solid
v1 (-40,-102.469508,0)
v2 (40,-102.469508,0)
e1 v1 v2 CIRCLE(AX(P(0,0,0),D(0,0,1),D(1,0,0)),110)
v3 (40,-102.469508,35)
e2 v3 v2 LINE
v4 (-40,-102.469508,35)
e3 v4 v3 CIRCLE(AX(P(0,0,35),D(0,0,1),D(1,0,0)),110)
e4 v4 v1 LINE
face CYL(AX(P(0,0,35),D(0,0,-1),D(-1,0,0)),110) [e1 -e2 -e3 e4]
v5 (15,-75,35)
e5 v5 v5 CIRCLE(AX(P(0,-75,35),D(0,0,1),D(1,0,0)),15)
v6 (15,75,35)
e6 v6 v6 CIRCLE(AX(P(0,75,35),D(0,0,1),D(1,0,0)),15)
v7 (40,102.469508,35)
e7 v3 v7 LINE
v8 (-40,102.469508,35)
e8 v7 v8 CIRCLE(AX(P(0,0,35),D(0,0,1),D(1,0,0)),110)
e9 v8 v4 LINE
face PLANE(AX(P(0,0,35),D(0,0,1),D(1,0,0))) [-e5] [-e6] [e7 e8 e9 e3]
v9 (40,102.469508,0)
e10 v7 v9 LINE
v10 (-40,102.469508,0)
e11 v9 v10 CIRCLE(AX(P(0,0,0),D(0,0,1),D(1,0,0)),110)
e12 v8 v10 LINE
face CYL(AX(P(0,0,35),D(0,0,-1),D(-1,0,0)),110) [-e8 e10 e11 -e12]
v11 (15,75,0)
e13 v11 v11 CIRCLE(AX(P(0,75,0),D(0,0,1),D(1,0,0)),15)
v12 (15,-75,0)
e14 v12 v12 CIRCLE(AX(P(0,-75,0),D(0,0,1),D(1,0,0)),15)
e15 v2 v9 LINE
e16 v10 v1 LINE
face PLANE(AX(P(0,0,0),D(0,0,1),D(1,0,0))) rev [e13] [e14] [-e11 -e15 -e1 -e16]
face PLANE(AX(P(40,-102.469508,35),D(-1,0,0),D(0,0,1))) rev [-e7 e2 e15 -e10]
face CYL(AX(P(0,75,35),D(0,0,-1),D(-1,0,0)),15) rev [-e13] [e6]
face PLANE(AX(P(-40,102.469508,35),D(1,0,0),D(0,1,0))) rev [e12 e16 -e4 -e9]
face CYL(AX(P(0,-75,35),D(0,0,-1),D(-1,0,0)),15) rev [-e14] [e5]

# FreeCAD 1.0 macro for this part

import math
import FreeCAD as App
import Part
import Sketcher
from FreeCAD import Vector

doc = App.newDocument("Part")
body = doc.addObject("PartDesign::Body", "Body")

# Sketch on XY plane
sketch1 = body.newObject("Sketcher::SketchObject", "Sketch")
sketch1.AttachmentSupport = (doc.getObject("XY_Plane"), [""])
sketch1.MapMode = "FlatFace"
sketch1.addGeometry([
    Part.LineSegment(Vector(-40, 102, 0), Vector(-40, -102, 0)),  # 0
    Part.ArcOfCircle(Part.Circle(Vector(0, 0, 0), Vector(0, 0, 1), 110), math.radians(-111), math.radians(-69)),  # 1
    Part.LineSegment(Vector(40, -102, 0), Vector(40, 102, 0)),  # 2
    Part.ArcOfCircle(Part.Circle(Vector(0, 0, 0), Vector(0, 0, 1), 110), math.radians(69), math.radians(111)),  # 3
    Part.Circle(Vector(0, -75, 0), Vector(0, 0, 1), 15),  # 4
    Part.Circle(Vector(0, 75, 0), Vector(0, 0, 1), 15),  # 5
], False)
sketch1.addConstraint([
    Sketcher.Constraint("Coincident", 0, 2, 1, 1),
    Sketcher.Constraint("Coincident", 1, 2, 2, 1),
    Sketcher.Constraint("Coincident", 2, 2, 3, 1),
    Sketcher.Constraint("Coincident", 3, 2, 0, 1),
    Sketcher.Constraint("Vertical", 0),
    Sketcher.Constraint("Vertical", 2),
    Sketcher.Constraint("Coincident", 1, 3, -1, 1),
    Sketcher.Constraint("Coincident", 3, 3, -1, 1),
    Sketcher.Constraint("Equal", 1, 3),
    Sketcher.Constraint("Equal", 4, 5),
    Sketcher.Constraint("Symmetric", 4, 3, 5, 3, -1, 1),
    Sketcher.Constraint("PointOnObject", 4, 3, -2),
    Sketcher.Constraint("Horizontal", 0, 2, 1, 2),
    Sketcher.Constraint("Diameter", 4, 30.0),
    Sketcher.Constraint("Radius", 1, 110.0),
    Sketcher.Constraint("DistanceY", 4, 3, -1, 1, 75.0),
    Sketcher.Constraint("DistanceX", 0, 2, -1, 1, 40.0),
])
pad1 = body.newObject("PartDesign::Pad", "Pad")
pad1.Profile = sketch1
pad1.Length = 35

doc.recompute()
